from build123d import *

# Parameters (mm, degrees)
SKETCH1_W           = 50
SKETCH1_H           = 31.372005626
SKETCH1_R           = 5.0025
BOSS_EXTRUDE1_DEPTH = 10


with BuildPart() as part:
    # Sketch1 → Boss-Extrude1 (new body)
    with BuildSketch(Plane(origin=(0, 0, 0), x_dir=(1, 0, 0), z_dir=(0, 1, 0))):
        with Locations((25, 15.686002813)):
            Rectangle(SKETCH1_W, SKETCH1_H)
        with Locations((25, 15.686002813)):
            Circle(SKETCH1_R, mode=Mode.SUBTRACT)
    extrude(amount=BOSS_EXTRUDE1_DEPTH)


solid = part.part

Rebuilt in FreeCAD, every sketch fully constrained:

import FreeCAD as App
import Part
import Sketcher

doc = App.newDocument("Part")
body = doc.addObject("PartDesign::Body", "Body")

# Sketch on XZ plane
sketch1 = body.newObject("Sketcher::SketchObject", "Sketch")
sketch1.AttachmentSupport = (doc.getObject("XZ_Plane"), [""])
sketch1.MapMode = "FlatFace"
sketch1.addGeometry([
    Part.LineSegment(App.Vector(0, -31.372006, 0), App.Vector(0, 0, 0)),  # 0
    Part.LineSegment(App.Vector(0, 0, 0), App.Vector(50, 0, 0)),  # 1
    Part.LineSegment(App.Vector(50, 0, 0), App.Vector(50, -31.372006, 0)),  # 2
    Part.LineSegment(App.Vector(50, -31.372006, 0), App.Vector(0, -31.372006, 0)),  # 3
    Part.Circle(App.Vector(25, -15.686003, 0), App.Vector(0, 0, 1), 5.0025),  # 4
], False)
sketch1.addConstraint([
    Sketcher.Constraint("Coincident", 0, 2, 1, 1),
    Sketcher.Constraint("Coincident", 1, 2, 2, 1),
    Sketcher.Constraint("Coincident", 2, 2, 3, 1),
    Sketcher.Constraint("Coincident", 3, 2, 0, 1),
    Sketcher.Constraint("Vertical", 0),
    Sketcher.Constraint("Horizontal", 1),
    Sketcher.Constraint("Vertical", 2),
    Sketcher.Constraint("Horizontal", 3),
    Sketcher.Constraint("Coincident", 0, 2, -1, 1),
    Sketcher.Constraint("DistanceX", 1, 1, 1, 2, 50.0),
    Sketcher.Constraint("Diameter", 4, 10.005),
    Sketcher.Constraint("DistanceX", -1, 1, 4, 3, 25.0),
    Sketcher.Constraint("DistanceY", 0, 1, 0, 2, 31.372006),
    Sketcher.Constraint("DistanceY", 4, 3, -1, 1, 15.686003),
])
pad1 = body.newObject("PartDesign::Pad", "Pad")
pad1.Profile = sketch1
pad1.Length = 10
pad1.Reversed = True

doc.recompute()
